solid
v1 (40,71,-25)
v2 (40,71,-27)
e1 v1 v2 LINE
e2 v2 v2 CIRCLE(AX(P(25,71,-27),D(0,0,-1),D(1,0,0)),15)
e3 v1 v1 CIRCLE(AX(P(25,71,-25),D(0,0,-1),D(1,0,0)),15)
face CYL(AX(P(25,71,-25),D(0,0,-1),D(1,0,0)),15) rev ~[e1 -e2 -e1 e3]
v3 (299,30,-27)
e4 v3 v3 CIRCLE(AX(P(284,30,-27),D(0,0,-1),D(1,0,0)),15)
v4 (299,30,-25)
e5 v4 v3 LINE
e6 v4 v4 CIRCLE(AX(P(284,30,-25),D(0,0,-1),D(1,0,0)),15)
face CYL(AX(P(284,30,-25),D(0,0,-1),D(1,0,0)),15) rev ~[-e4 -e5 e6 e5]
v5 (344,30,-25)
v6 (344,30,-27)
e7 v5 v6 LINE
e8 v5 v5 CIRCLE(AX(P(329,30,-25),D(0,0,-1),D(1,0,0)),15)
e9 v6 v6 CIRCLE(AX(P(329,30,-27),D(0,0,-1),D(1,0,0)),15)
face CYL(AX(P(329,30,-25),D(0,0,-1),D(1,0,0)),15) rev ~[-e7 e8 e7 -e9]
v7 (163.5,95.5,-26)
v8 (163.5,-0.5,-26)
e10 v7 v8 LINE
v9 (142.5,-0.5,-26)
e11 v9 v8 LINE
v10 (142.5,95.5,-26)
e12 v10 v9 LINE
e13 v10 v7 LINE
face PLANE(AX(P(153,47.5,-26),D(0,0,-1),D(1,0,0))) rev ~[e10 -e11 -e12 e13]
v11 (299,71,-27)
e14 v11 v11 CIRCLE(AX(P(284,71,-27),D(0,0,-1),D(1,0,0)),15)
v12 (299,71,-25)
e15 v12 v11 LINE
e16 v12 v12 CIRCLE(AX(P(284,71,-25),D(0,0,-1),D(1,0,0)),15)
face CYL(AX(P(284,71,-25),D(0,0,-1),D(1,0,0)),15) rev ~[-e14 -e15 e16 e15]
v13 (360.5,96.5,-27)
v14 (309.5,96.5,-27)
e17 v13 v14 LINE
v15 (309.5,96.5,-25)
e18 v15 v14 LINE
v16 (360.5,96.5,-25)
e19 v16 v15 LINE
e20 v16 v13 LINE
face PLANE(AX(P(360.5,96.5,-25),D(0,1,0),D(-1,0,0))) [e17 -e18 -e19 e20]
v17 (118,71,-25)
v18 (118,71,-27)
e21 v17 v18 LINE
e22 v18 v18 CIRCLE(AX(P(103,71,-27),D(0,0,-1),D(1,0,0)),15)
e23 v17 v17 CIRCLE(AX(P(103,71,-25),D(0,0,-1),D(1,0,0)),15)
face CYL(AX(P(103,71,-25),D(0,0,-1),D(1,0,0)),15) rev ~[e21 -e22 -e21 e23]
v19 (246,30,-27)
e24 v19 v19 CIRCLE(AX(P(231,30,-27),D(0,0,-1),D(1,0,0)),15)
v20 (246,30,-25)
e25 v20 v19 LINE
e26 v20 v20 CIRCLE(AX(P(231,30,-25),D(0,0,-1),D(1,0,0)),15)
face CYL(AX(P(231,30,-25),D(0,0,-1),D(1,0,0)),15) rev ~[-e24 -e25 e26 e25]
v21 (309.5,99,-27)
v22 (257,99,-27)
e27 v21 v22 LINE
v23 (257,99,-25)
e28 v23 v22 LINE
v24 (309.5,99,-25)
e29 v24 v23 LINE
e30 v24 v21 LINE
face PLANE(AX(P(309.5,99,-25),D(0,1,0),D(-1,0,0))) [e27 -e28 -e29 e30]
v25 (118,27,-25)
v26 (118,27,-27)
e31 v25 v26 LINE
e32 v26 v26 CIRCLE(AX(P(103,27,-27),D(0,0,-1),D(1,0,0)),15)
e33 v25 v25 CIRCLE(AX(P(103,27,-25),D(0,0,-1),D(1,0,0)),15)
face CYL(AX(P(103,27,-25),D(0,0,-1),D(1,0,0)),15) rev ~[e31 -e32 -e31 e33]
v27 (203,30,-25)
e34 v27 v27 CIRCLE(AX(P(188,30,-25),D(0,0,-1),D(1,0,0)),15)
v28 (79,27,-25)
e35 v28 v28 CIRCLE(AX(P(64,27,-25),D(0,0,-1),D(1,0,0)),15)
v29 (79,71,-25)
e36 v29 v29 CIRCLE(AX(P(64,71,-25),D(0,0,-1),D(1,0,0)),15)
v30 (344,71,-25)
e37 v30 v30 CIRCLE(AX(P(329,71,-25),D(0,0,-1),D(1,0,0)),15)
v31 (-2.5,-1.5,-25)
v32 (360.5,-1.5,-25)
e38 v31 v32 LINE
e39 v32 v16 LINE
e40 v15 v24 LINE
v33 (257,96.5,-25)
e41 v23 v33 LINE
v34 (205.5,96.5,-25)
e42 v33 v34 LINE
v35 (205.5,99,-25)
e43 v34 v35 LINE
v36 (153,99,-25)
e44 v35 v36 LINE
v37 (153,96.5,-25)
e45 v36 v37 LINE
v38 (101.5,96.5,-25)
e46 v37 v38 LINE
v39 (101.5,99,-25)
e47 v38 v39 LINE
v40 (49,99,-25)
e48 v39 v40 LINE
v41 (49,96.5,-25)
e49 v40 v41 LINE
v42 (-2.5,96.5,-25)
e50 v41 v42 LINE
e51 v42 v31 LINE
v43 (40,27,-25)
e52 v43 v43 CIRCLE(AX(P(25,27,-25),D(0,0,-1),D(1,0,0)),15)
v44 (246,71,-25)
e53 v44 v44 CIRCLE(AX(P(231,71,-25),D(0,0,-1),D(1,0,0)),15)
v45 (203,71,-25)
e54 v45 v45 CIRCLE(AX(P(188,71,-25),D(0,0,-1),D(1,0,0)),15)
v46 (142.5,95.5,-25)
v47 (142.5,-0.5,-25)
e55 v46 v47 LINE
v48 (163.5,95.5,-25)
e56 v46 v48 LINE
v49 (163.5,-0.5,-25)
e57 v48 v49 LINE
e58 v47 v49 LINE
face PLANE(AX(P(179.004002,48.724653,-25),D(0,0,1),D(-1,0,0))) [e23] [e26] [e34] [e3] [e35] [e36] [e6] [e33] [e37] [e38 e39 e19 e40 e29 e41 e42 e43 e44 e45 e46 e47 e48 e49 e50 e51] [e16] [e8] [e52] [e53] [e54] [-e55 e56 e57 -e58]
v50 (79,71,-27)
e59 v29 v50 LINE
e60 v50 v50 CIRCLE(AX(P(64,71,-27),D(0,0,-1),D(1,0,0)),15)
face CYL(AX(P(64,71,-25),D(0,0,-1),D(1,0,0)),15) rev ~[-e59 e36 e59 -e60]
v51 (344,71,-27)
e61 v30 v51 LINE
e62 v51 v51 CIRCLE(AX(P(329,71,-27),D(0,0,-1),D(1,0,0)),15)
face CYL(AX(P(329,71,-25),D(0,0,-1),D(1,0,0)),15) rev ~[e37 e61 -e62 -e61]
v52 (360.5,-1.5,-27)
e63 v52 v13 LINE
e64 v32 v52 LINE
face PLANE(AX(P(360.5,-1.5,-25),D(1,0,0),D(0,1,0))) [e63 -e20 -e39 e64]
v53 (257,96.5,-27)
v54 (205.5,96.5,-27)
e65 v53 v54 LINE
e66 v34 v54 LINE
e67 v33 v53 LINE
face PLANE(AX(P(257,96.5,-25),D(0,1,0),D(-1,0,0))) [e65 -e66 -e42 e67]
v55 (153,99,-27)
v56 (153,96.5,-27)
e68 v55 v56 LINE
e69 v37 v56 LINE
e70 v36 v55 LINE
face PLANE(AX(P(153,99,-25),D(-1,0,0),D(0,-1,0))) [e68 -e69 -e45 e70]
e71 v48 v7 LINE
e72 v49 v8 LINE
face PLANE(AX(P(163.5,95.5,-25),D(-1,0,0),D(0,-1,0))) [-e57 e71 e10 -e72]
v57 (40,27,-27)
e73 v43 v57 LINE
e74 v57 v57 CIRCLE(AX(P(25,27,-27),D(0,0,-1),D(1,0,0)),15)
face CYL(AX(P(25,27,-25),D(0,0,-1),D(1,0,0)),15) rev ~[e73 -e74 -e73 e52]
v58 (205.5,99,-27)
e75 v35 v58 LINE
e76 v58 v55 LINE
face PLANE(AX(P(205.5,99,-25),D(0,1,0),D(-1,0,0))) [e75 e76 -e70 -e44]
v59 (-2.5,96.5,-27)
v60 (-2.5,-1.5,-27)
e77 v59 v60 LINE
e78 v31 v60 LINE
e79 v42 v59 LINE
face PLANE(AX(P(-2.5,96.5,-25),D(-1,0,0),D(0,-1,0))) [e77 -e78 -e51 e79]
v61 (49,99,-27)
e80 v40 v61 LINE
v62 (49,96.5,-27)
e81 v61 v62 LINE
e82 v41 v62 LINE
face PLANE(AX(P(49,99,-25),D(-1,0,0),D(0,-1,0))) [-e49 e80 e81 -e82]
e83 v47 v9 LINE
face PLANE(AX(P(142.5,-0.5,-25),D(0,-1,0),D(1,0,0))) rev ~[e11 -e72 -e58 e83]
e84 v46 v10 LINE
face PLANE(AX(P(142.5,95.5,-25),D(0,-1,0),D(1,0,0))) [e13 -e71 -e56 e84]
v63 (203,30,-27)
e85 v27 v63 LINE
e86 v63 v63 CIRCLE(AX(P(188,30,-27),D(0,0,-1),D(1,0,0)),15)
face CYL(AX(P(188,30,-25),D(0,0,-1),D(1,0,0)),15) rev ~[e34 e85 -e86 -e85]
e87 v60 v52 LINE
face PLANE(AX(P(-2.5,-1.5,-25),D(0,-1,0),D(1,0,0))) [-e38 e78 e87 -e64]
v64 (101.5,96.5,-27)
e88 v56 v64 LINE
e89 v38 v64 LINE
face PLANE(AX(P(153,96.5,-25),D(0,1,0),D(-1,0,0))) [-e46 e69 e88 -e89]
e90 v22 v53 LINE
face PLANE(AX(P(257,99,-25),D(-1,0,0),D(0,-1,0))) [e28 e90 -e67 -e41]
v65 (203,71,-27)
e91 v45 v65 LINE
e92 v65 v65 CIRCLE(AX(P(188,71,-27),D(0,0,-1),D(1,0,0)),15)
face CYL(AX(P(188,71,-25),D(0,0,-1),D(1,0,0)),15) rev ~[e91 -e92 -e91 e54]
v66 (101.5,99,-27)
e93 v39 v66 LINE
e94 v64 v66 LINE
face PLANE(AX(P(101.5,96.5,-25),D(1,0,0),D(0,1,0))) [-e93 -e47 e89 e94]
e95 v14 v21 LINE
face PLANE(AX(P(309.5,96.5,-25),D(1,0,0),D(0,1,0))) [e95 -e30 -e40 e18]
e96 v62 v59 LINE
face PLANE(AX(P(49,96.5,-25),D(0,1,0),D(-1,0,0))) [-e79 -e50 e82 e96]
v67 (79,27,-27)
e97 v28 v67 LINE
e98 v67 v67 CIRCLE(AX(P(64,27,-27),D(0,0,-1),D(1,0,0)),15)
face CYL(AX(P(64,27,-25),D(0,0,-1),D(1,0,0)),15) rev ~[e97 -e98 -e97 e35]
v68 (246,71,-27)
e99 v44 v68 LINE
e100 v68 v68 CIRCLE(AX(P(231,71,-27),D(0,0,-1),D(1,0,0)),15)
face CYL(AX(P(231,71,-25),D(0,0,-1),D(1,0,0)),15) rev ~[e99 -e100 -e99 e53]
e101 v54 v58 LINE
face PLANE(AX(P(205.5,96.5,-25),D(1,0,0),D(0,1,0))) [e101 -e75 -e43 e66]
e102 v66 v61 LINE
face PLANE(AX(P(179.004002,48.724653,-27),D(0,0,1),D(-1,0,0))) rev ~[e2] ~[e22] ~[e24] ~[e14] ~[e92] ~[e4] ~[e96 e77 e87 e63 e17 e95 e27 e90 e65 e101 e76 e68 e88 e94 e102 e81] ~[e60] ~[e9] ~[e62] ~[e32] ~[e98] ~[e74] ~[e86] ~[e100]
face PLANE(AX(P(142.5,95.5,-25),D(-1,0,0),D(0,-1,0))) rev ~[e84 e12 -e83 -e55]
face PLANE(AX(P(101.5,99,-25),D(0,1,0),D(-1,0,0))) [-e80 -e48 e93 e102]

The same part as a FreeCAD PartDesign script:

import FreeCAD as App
import Part
import Sketcher
from FreeCAD import Vector
Q = App.Units.Quantity


def add_polygon(sketch, points):
    """Adds a closed chain of lines whose ends are joined by coincident constraints."""
    first, n = sketch.GeometryCount, len(points)
    for a, b in zip(points, points[1:] + points[:1]):
        sketch.addGeometry(Part.LineSegment(App.Vector(*a, 0), App.Vector(*b, 0)), False)
    for i in range(n):
        sketch.addConstraint(Sketcher.Constraint("Coincident", first + i, 2, first + (i + 1) % n, 1))

doc = App.newDocument("Part")
body = doc.addObject("PartDesign::Body", "Body")

# Sketch on XY plane
sketch1 = doc.addObject("Sketcher::SketchObject", "Sketch")
body.addObject(sketch1)
sketch1.AttachmentSupport = (doc.XY_Plane, [""])
sketch1.MapMode = "FlatFace"
sketch1.AttachmentOffset = App.Placement(Vector(0, 0, -25), App.Rotation())
add_polygon(sketch1, [(142, 0), (142, 96), (164, 96), (164, 0)])  # lines 0-3
sketch1.addConstraint([
    Sketcher.Constraint("Vertical", 0),
    Sketcher.Constraint("Horizontal", 1),
    Sketcher.Constraint("Vertical", 2),
    Sketcher.Constraint("Horizontal", 3),
    Sketcher.Constraint("DistanceX", 1, 1, 1, 2, Q("21 mm")),
    Sketcher.Constraint("DistanceY", 0, 1, 0, 2, Q("96 mm")),
    Sketcher.Constraint("DistanceX", -1, 1, 0, 2, Q("142.5 mm")),
    Sketcher.Constraint("DistanceY", -1, 1, 0, 2, Q("95.5 mm")),
])
pad1 = doc.addObject("PartDesign::Pad", "Pad")
body.addObject(pad1)
pad1.Profile = sketch1
pad1.Length = 1
pad1.Reversed = True
body2 = doc.addObject("PartDesign::Body", "Body001")
body2.AllowCompound = True

# Sketch on XY plane
sketch2 = doc.addObject("Sketcher::SketchObject", "Sketch001")
body2.addObject(sketch2)
sketch2.AttachmentSupport = (doc.getObject("XY_Plane001"), [""])
sketch2.MapMode = "FlatFace"
sketch2.AttachmentOffset = App.Placement(Vector(0, 0, -25), App.Rotation())
sketch2.addGeometry([
    Part.Circle(Vector(25, 27, 0), Vector(0, 0, 1), 15),  # 0
    Part.Circle(Vector(103, 27, 0), Vector(0, 0, 1), 15),  # 1
    Part.Circle(Vector(64, 27, 0), Vector(0, 0, 1), 15),  # 2
    Part.Circle(Vector(103, 71, 0), Vector(0, 0, 1), 15),  # 3
    Part.Circle(Vector(25, 71, 0), Vector(0, 0, 1), 15),  # 4
    Part.Circle(Vector(64, 71, 0), Vector(0, 0, 1), 15),  # 5
    Part.Circle(Vector(188, 30, 0), Vector(0, 0, 1), 15),  # 6
    Part.Circle(Vector(231, 30, 0), Vector(0, 0, 1), 15),  # 7
    Part.Circle(Vector(188, 71, 0), Vector(0, 0, 1), 15),  # 8
    Part.Circle(Vector(231, 71, 0), Vector(0, 0, 1), 15),  # 9
    Part.Circle(Vector(284, 30, 0), Vector(0, 0, 1), 15),  # 10
    Part.Circle(Vector(329, 30, 0), Vector(0, 0, 1), 15),  # 11
    Part.Circle(Vector(284, 71, 0), Vector(0, 0, 1), 15),  # 12
    Part.Circle(Vector(329, 71, 0), Vector(0, 0, 1), 15),  # 13
], False)
sketch2.addConstraint([
    Sketcher.Constraint("Equal", 0, 1),
    Sketcher.Constraint("Equal", 1, 2),
    Sketcher.Constraint("Equal", 2, 3),
    Sketcher.Constraint("Equal", 3, 4),
    Sketcher.Constraint("Equal", 4, 5),
    Sketcher.Constraint("Equal", 5, 6),
    Sketcher.Constraint("Equal", 6, 7),
    Sketcher.Constraint("Equal", 7, 8),
    Sketcher.Constraint("Equal", 8, 9),
    Sketcher.Constraint("Equal", 9, 10),
    Sketcher.Constraint("Equal", 10, 11),
    Sketcher.Constraint("Equal", 11, 12),
    Sketcher.Constraint("Equal", 12, 13),
    Sketcher.Constraint("Horizontal", 0, 3, 1, 3),
    Sketcher.Constraint("Horizontal", 1, 3, 2, 3),
    Sketcher.Constraint("Horizontal", 3, 3, 4, 3),
    Sketcher.Constraint("Horizontal", 4, 3, 5, 3),
    Sketcher.Constraint("Horizontal", 6, 3, 7, 3),
    Sketcher.Constraint("Horizontal", 5, 3, 8, 3),
    Sketcher.Constraint("Horizontal", 8, 3, 9, 3),
    Sketcher.Constraint("Horizontal", 7, 3, 10, 3),
    Sketcher.Constraint("Horizontal", 10, 3, 11, 3),
    Sketcher.Constraint("Horizontal", 9, 3, 12, 3),
    Sketcher.Constraint("Horizontal", 12, 3, 13, 3),
    Sketcher.Constraint("Vertical", 1, 3, 3, 3),
    Sketcher.Constraint("Vertical", 0, 3, 4, 3),
    Sketcher.Constraint("Vertical", 2, 3, 5, 3),
    Sketcher.Constraint("Vertical", 6, 3, 8, 3),
    Sketcher.Constraint("Vertical", 7, 3, 9, 3),
    Sketcher.Constraint("Vertical", 10, 3, 12, 3),
    Sketcher.Constraint("Vertical", 11, 3, 13, 3),
    Sketcher.Constraint("Diameter", 0, Q("30 mm")),
    Sketcher.Constraint("DistanceX", -1, 1, 0, 3, Q("25 mm")),
    Sketcher.Constraint("DistanceY", -1, 1, 0, 3, Q("27 mm")),
    Sketcher.Constraint("DistanceX", -1, 1, 1, 3, Q("103 mm")),
    Sketcher.Constraint("DistanceX", -1, 1, 2, 3, Q("64 mm")),
    Sketcher.Constraint("DistanceY", -1, 1, 3, 3, Q("71 mm")),
    Sketcher.Constraint("DistanceX", -1, 1, 6, 3, Q("188 mm")),
    Sketcher.Constraint("DistanceY", -1, 1, 6, 3, Q("30 mm")),
    Sketcher.Constraint("DistanceX", -1, 1, 7, 3, Q("231 mm")),
    Sketcher.Constraint("DistanceX", -1, 1, 10, 3, Q("284 mm")),
    Sketcher.Constraint("DistanceX", -1, 1, 11, 3, Q("329 mm")),
])
pad2 = doc.addObject("PartDesign::Pad", "Pad001")
body2.addObject(pad2)
pad2.Profile = sketch2
pad2.Type = "TwoLengths"
pad2.Length = 3
pad2.Length2 = 1
pad2.Reversed = True
doc.recompute()

boolean = doc.addObject("PartDesign::Boolean", "Boolean")
body2.addObject(boolean)
boolean.Type = "Fuse"
boolean.addObjects([body])
body3 = doc.addObject("PartDesign::Body", "Body002")

# Sketch on XY plane
sketch3 = doc.addObject("Sketcher::SketchObject", "Sketch002")
body3.addObject(sketch3)
sketch3.AttachmentSupport = (doc.getObject("XY_Plane002"), [""])
sketch3.MapMode = "FlatFace"
sketch3.AttachmentOffset = App.Placement(Vector(0, 0, -25), App.Rotation())
add_polygon(sketch3, [(360.5, -1.5), (-2.5, -1.5), (-2.5, 96.5), (49, 96.5), (49, 99), (101.5, 99), (101.5, 96.5), (153, 96.5), (153, 99), (205.5, 99), (205.5, 96.5), (257, 96.5), (257, 99), (309.5, 99), (309.5, 96.5), (360.5, 96.5)])  # lines 0-15
sketch3.addConstraint([
    Sketcher.Constraint("Horizontal", 0),
    Sketcher.Constraint("Vertical", 1),
    Sketcher.Constraint("Horizontal", 2),
    Sketcher.Constraint("Vertical", 3),
    Sketcher.Constraint("Horizontal", 4),
    Sketcher.Constraint("Vertical", 5),
    Sketcher.Constraint("Horizontal", 6),
    Sketcher.Constraint("Vertical", 7),
    Sketcher.Constraint("Horizontal", 8),
    Sketcher.Constraint("Vertical", 9),
    Sketcher.Constraint("Horizontal", 10),
    Sketcher.Constraint("Vertical", 11),
    Sketcher.Constraint("Horizontal", 12),
    Sketcher.Constraint("Vertical", 13),
    Sketcher.Constraint("Horizontal", 14),
    Sketcher.Constraint("Vertical", 15),
    Sketcher.Constraint("Horizontal", 2, 2, 5, 2),
    Sketcher.Constraint("Horizontal", 4, 2, 7, 2),
    Sketcher.Constraint("Horizontal", 6, 2, 9, 2),
    Sketcher.Constraint("Horizontal", 8, 2, 11, 2),
    Sketcher.Constraint("Horizontal", 10, 2, 13, 2),
    Sketcher.Constraint("Equal", 2, 6),
    Sketcher.Constraint("Equal", 4, 8),
    Sketcher.Constraint("Equal", 6, 10),
    Sketcher.Constraint("Equal", 8, 12),
    Sketcher.Constraint("DistanceX", 0, 2, 0, 1, Q("363 mm")),
    Sketcher.Constraint("DistanceX", 14, 1, 14, 2, Q("51 mm")),
    Sketcher.Constraint("DistanceY", 1, 1, 1, 2, Q("98 mm")),
    Sketcher.Constraint("DistanceX", 2, 1, 2, 2, Q("51.5 mm")),
    Sketcher.Constraint("DistanceY", 3, 1, 3, 2, Q("2.5 mm")),
    Sketcher.Constraint("DistanceX", -1, 1, 2, 2, Q("49 mm")),
    Sketcher.Constraint("DistanceY", -1, 1, 3, 2, Q("99 mm")),
])
pad3 = doc.addObject("PartDesign::Pad", "Pad002")
body3.addObject(pad3)
pad3.Profile = sketch3
pad3.Length = 2
pad3.Reversed = True
doc.recompute()

boolean2 = doc.addObject("PartDesign::Boolean", "Boolean001")
body3.addObject(boolean2)
boolean2.Type = "Cut"
boolean2.addObjects([body2])

doc.recompute()
